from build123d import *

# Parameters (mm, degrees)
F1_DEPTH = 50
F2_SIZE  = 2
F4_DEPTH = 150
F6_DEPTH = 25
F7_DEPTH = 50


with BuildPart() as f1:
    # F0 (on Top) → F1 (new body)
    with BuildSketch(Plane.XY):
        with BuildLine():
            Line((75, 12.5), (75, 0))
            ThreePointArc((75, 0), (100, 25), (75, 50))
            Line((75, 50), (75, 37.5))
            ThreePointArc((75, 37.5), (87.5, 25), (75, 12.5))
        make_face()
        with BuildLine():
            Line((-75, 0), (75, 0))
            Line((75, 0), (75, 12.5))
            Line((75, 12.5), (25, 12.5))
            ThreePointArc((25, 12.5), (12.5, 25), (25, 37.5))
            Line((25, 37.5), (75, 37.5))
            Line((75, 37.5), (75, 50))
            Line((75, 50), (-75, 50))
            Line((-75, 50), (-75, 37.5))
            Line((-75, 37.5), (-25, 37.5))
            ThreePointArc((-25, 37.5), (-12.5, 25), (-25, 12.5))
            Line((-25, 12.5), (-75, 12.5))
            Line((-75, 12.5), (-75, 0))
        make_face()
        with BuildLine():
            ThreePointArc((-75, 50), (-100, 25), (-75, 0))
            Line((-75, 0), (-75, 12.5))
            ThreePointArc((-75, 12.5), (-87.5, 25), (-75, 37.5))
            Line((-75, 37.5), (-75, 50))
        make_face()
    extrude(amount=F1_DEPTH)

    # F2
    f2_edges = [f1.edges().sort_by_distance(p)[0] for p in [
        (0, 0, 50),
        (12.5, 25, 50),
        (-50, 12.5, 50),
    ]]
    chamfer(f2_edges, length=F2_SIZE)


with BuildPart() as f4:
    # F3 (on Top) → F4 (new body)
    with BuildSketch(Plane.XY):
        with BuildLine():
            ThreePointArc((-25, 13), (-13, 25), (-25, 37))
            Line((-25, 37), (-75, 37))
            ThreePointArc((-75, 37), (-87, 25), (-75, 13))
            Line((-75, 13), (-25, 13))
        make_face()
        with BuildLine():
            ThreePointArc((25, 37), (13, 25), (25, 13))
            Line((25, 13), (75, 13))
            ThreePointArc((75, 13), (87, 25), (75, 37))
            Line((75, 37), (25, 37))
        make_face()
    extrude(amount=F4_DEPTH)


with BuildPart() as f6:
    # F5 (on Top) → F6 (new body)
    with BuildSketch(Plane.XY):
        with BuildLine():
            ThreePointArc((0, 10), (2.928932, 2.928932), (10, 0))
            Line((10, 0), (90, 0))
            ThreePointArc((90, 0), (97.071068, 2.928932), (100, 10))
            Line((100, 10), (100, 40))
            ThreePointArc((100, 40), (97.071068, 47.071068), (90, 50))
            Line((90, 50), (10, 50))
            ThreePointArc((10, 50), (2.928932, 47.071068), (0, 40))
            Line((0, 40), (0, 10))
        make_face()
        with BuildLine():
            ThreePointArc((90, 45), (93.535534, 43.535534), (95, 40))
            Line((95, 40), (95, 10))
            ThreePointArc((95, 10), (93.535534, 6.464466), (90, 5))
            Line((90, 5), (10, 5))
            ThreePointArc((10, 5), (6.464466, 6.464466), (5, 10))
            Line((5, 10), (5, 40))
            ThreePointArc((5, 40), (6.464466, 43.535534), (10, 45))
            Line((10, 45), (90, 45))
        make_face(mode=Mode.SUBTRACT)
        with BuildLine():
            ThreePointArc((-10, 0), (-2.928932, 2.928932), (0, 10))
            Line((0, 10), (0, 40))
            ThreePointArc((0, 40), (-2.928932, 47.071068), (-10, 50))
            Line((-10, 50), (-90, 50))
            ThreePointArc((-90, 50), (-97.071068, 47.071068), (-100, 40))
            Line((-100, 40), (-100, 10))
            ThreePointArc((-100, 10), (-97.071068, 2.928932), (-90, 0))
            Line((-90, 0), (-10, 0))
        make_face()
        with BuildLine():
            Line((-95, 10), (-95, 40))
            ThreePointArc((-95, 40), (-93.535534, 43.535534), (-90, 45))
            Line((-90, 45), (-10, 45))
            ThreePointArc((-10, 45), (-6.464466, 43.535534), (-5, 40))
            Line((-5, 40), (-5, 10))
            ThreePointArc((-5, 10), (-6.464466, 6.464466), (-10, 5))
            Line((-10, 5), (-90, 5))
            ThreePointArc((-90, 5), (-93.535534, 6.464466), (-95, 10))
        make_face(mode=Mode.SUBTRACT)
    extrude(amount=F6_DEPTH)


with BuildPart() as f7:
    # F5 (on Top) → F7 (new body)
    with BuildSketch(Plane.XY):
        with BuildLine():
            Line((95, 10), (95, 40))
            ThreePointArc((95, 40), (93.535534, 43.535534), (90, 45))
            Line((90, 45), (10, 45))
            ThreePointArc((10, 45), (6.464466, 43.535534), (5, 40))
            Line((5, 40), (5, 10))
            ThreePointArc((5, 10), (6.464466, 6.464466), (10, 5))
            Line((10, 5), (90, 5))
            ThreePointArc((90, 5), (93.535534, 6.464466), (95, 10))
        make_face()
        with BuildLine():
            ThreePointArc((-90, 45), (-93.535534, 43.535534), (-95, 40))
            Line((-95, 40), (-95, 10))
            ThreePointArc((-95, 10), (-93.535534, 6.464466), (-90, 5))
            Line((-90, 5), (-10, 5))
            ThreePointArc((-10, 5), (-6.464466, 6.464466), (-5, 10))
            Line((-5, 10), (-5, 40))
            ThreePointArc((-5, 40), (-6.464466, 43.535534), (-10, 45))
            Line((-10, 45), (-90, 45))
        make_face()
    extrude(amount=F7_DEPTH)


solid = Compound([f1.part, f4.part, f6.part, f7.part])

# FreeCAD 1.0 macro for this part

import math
import FreeCAD as App
import Part
import Sketcher
from FreeCAD import Vector
Q = App.Units.Quantity


def edges_at(feature, points):
    """Names of the edges that pass closest to the given points."""
    edges = feature.Shape.Edges
    near = lambda p: min(range(len(edges)), key=lambda i: edges[i].distToShape(Part.Vertex(*p))[0])
    return sorted({f"Edge{near(p) + 1}" for p in points})

doc = App.newDocument("Part")
body = doc.addObject("PartDesign::Body", "Body")

# Sketch on XY plane
sketch1 = body.newObject("Sketcher::SketchObject", "Sketch")
sketch1.AttachmentSupport = (doc.getObject("XY_Plane"), [""])
sketch1.MapMode = "FlatFace"
sketch1.addGeometry([
    Part.ArcOfCircle(Part.Circle(Vector(75, 25, 0), Vector(0, 0, 1), 25), math.radians(-90), math.radians(90)),  # 0
    Part.LineSegment(Vector(75, 50, 0), Vector(-75, 50, 0)),  # 1
    Part.ArcOfCircle(Part.Circle(Vector(-75, 25, 0), Vector(0, 0, 1), 25), math.radians(90), math.radians(270)),  # 2
    Part.LineSegment(Vector(-75, 0, 0), Vector(75, 0, 0)),  # 3
    Part.LineSegment(Vector(-75, 38, 0), Vector(-25, 38, 0)),  # 4
    Part.ArcOfCircle(Part.Circle(Vector(-25, 25, 0), Vector(0, 0, 1), 12), math.radians(-90), math.radians(90)),  # 5
    Part.LineSegment(Vector(-25, 12, 0), Vector(-75, 12, 0)),  # 6
    Part.ArcOfCircle(Part.Circle(Vector(-75, 25, 0), Vector(0, 0, 1), 12), math.radians(90), math.radians(270)),  # 7
    Part.ArcOfCircle(Part.Circle(Vector(75, 25, 0), Vector(0, 0, 1), 12), math.radians(-90), math.radians(90)),  # 8
    Part.LineSegment(Vector(75, 12, 0), Vector(25, 12, 0)),  # 9
    Part.ArcOfCircle(Part.Circle(Vector(25, 25, 0), Vector(0, 0, 1), 12), math.radians(90), math.radians(270)),  # 10
    Part.LineSegment(Vector(25, 38, 0), Vector(75, 38, 0)),  # 11
], False)
sketch1.addConstraint([
    Sketcher.Constraint("Tangent", 0, 2, 1, 1),
    Sketcher.Constraint("Tangent", 1, 2, 2, 1),
    Sketcher.Constraint("Tangent", 2, 2, 3, 1),
    Sketcher.Constraint("Tangent", 3, 2, 0, 1),
    Sketcher.Constraint("Tangent", 4, 2, 5, 2),
    Sketcher.Constraint("Tangent", 5, 1, 6, 1),
    Sketcher.Constraint("Tangent", 6, 2, 7, 2),
    Sketcher.Constraint("Tangent", 7, 1, 4, 1),
    Sketcher.Constraint("Tangent", 8, 1, 9, 1),
    Sketcher.Constraint("Tangent", 9, 2, 10, 2),
    Sketcher.Constraint("Tangent", 10, 1, 11, 1),
    Sketcher.Constraint("Tangent", 11, 2, 8, 2),
    Sketcher.Constraint("Horizontal", 1),
    Sketcher.Constraint("Horizontal", 3),
    Sketcher.Constraint("Horizontal", 4),
    Sketcher.Constraint("Horizontal", 6),
    Sketcher.Constraint("Horizontal", 9),
    Sketcher.Constraint("Horizontal", 11),
    Sketcher.Constraint("Coincident", 7, 3, 2, 3),
    Sketcher.Constraint("Coincident", 8, 3, 0, 3),
    Sketcher.Constraint("Equal", 7, 8),
    Sketcher.Constraint("Symmetric", 2, 2, 3, 2, -1, 1),
    Sketcher.Constraint("Equal", 6, 9),
    Sketcher.Constraint("Radius", 0, Q("25 mm")),
    Sketcher.Constraint("Radius", 5, Q("12.5 mm")),
    Sketcher.Constraint("DistanceX", 1, 2, 1, 1, Q("150 mm")),
    Sketcher.Constraint("DistanceX", 4, 1, 4, 2, Q("50 mm")),
])
pad1 = body.newObject("PartDesign::Pad", "Pad")
pad1.Profile = sketch1
pad1.Length = 50
doc.recompute()

chamfer = body.newObject("PartDesign::Chamfer", "Chamfer")
chamfer.Base = (pad1, edges_at(pad1, [(0, 0, 50), (12.5, 25, 50), (-50, 12.5, 50)]))
chamfer.Size = 2
body2 = doc.addObject("PartDesign::Body", "Body001")
body2.AllowCompound = True

# Sketch on XY plane
sketch2 = body2.newObject("Sketcher::SketchObject", "Sketch001")
sketch2.AttachmentSupport = (doc.getObject("XY_Plane001"), [""])
sketch2.MapMode = "FlatFace"
sketch2.addGeometry([
    Part.ArcOfCircle(Part.Circle(Vector(-25, 25, 0), Vector(0, 0, 1), 12), math.radians(-90), math.radians(90)),  # 0
    Part.LineSegment(Vector(-25, 37, 0), Vector(-75, 37, 0)),  # 1
    Part.ArcOfCircle(Part.Circle(Vector(-75, 25, 0), Vector(0, 0, 1), 12), math.radians(90), math.radians(270)),  # 2
    Part.LineSegment(Vector(-75, 13, 0), Vector(-25, 13, 0)),  # 3
    Part.ArcOfCircle(Part.Circle(Vector(25, 25, 0), Vector(0, 0, 1), 12), math.radians(90), math.radians(270)),  # 4
    Part.LineSegment(Vector(25, 13, 0), Vector(75, 13, 0)),  # 5
    Part.ArcOfCircle(Part.Circle(Vector(75, 25, 0), Vector(0, 0, 1), 12), math.radians(-90), math.radians(90)),  # 6
    Part.LineSegment(Vector(75, 37, 0), Vector(25, 37, 0)),  # 7
], False)
sketch2.addConstraint([
    Sketcher.Constraint("Tangent", 0, 2, 1, 1),
    Sketcher.Constraint("Tangent", 1, 2, 2, 1),
    Sketcher.Constraint("Tangent", 2, 2, 3, 1),
    Sketcher.Constraint("Tangent", 3, 2, 0, 1),
    Sketcher.Constraint("Tangent", 4, 2, 5, 1),
    Sketcher.Constraint("Tangent", 5, 2, 6, 1),
    Sketcher.Constraint("Tangent", 6, 2, 7, 1),
    Sketcher.Constraint("Tangent", 7, 2, 4, 1),
    Sketcher.Constraint("Horizontal", 1),
    Sketcher.Constraint("Horizontal", 3),
    Sketcher.Constraint("Horizontal", 5),
    Sketcher.Constraint("Horizontal", 7),
    Sketcher.Constraint("Equal", 2, 4),
    Sketcher.Constraint("Symmetric", 0, 3, 4, 3, -2),
    Sketcher.Constraint("Equal", 3, 5),
    Sketcher.Constraint("Radius", 0, Q("12 mm")),
    Sketcher.Constraint("DistanceX", 1, 2, 1, 1, Q("50 mm")),
    Sketcher.Constraint("DistanceX", 0, 3, -1, 1, Q("25 mm")),
    Sketcher.Constraint("DistanceY", -1, 1, 0, 3, Q("25 mm")),
])
pad2 = body2.newObject("PartDesign::Pad", "Pad001")
pad2.Profile = sketch2
pad2.Length = 150
body3 = doc.addObject("PartDesign::Body", "Body002")

# Sketch on XY plane
sketch3 = body3.newObject("Sketcher::SketchObject", "Sketch002")
sketch3.AttachmentSupport = (doc.getObject("XY_Plane002"), [""])
sketch3.MapMode = "FlatFace"
sketch3.addGeometry([
    Part.ArcOfCircle(Part.Circle(Vector(10, 10, 0), Vector(0, 0, 1), 10), math.radians(180), math.radians(270)),  # 0
    Part.LineSegment(Vector(10, 0, 0), Vector(90, 0, 0)),  # 1
    Part.ArcOfCircle(Part.Circle(Vector(90, 10, 0), Vector(0, 0, 1), 10), math.radians(-90), math.radians(0)),  # 2
    Part.LineSegment(Vector(100, 10, 0), Vector(100, 40, 0)),  # 3
    Part.ArcOfCircle(Part.Circle(Vector(90, 40, 0), Vector(0, 0, 1), 10), math.radians(0), math.radians(90)),  # 4
    Part.LineSegment(Vector(90, 50, 0), Vector(10, 50, 0)),  # 5
    Part.ArcOfCircle(Part.Circle(Vector(10, 40, 0), Vector(0, 0, 1), 10), math.radians(90), math.radians(180)),  # 6
    Part.ArcOfCircle(Part.Circle(Vector(-10, 40, 0), Vector(0, 0, 1), 10), math.radians(0), math.radians(90)),  # 7
    Part.LineSegment(Vector(-10, 50, 0), Vector(-90, 50, 0)),  # 8
    Part.ArcOfCircle(Part.Circle(Vector(-90, 40, 0), Vector(0, 0, 1), 10), math.radians(90), math.radians(180)),  # 9
    Part.LineSegment(Vector(-100, 40, 0), Vector(-100, 10, 0)),  # 10
    Part.ArcOfCircle(Part.Circle(Vector(-90, 10, 0), Vector(0, 0, 1), 10), math.radians(180), math.radians(270)),  # 11
    Part.LineSegment(Vector(-90, 0, 0), Vector(-10, 0, 0)),  # 12
    Part.ArcOfCircle(Part.Circle(Vector(-10, 10, 0), Vector(0, 0, 1), 10), math.radians(-90), math.radians(0)),  # 13
    Part.ArcOfCircle(Part.Circle(Vector(-90, 10, 0), Vector(0, 0, 1), 5), math.radians(180), math.radians(270)),  # 14
    Part.LineSegment(Vector(-95, 10, 0), Vector(-95, 40, 0)),  # 15
    Part.ArcOfCircle(Part.Circle(Vector(-90, 40, 0), Vector(0, 0, 1), 5), math.radians(90), math.radians(180)),  # 16
    Part.LineSegment(Vector(-90, 45, 0), Vector(-10, 45, 0)),  # 17
    Part.ArcOfCircle(Part.Circle(Vector(-10, 40, 0), Vector(0, 0, 1), 5), math.radians(0), math.radians(90)),  # 18
    Part.LineSegment(Vector(-5, 40, 0), Vector(-5, 10, 0)),  # 19
    Part.ArcOfCircle(Part.Circle(Vector(-10, 10, 0), Vector(0, 0, 1), 5), math.radians(-90), math.radians(0)),  # 20
    Part.LineSegment(Vector(-10, 5, 0), Vector(-90, 5, 0)),  # 21
    Part.LineSegment(Vector(10, 45, 0), Vector(90, 45, 0)),  # 22
    Part.ArcOfCircle(Part.Circle(Vector(90, 40, 0), Vector(0, 0, 1), 5), math.radians(0), math.radians(90)),  # 23
    Part.LineSegment(Vector(95, 40, 0), Vector(95, 10, 0)),  # 24
    Part.ArcOfCircle(Part.Circle(Vector(90, 10, 0), Vector(0, 0, 1), 5), math.radians(-90), math.radians(0)),  # 25
    Part.LineSegment(Vector(90, 5, 0), Vector(10, 5, 0)),  # 26
    Part.ArcOfCircle(Part.Circle(Vector(10, 10, 0), Vector(0, 0, 1), 5), math.radians(180), math.radians(270)),  # 27
    Part.LineSegment(Vector(5, 10, 0), Vector(5, 40, 0)),  # 28
    Part.ArcOfCircle(Part.Circle(Vector(10, 40, 0), Vector(0, 0, 1), 5), math.radians(90), math.radians(180)),  # 29
], False)
sketch3.addConstraint([
    Sketcher.Constraint("Tangent", 0, 2, 1, 1),
    Sketcher.Constraint("Tangent", 1, 2, 2, 1),
    Sketcher.Constraint("Tangent", 2, 2, 3, 1),
    Sketcher.Constraint("Tangent", 3, 2, 4, 1),
    Sketcher.Constraint("Tangent", 4, 2, 5, 1),
    Sketcher.Constraint("Tangent", 5, 2, 6, 1),
    Sketcher.Constraint("Tangent", 6, 2, 7, 1),
    Sketcher.Constraint("Tangent", 7, 2, 8, 1),
    Sketcher.Constraint("Tangent", 8, 2, 9, 1),
    Sketcher.Constraint("Tangent", 9, 2, 10, 1),
    Sketcher.Constraint("Tangent", 10, 2, 11, 1),
    Sketcher.Constraint("Tangent", 11, 2, 12, 1),
    Sketcher.Constraint("Tangent", 12, 2, 13, 1),
    Sketcher.Constraint("Tangent", 13, 2, 0, 1),
    Sketcher.Constraint("Tangent", 14, 1, 15, 1),
    Sketcher.Constraint("Tangent", 15, 2, 16, 2),
    Sketcher.Constraint("Tangent", 16, 1, 17, 1),
    Sketcher.Constraint("Tangent", 17, 2, 18, 2),
    Sketcher.Constraint("Tangent", 18, 1, 19, 1),
    Sketcher.Constraint("Tangent", 19, 2, 20, 2),
    Sketcher.Constraint("Tangent", 20, 1, 21, 1),
    Sketcher.Constraint("Tangent", 21, 2, 14, 2),
    Sketcher.Constraint("Tangent", 22, 2, 23, 2),
    Sketcher.Constraint("Tangent", 23, 1, 24, 1),
    Sketcher.Constraint("Tangent", 24, 2, 25, 2),
    Sketcher.Constraint("Tangent", 25, 1, 26, 1),
    Sketcher.Constraint("Tangent", 26, 2, 27, 2),
    Sketcher.Constraint("Tangent", 27, 1, 28, 1),
    Sketcher.Constraint("Tangent", 28, 2, 29, 2),
    Sketcher.Constraint("Tangent", 29, 1, 22, 1),
    Sketcher.Constraint("Horizontal", 1),
    Sketcher.Constraint("Vertical", 3),
    Sketcher.Constraint("Horizontal", 5),
    Sketcher.Constraint("Horizontal", 8),
    Sketcher.Constraint("Vertical", 10),
    Sketcher.Constraint("Horizontal", 12),
    Sketcher.Constraint("Vertical", 15),
    Sketcher.Constraint("Horizontal", 17),
    Sketcher.Constraint("Vertical", 19),
    Sketcher.Constraint("Horizontal", 21),
    Sketcher.Constraint("Horizontal", 22),
    Sketcher.Constraint("Vertical", 24),
    Sketcher.Constraint("Horizontal", 26),
    Sketcher.Constraint("Vertical", 28),
    Sketcher.Constraint("Coincident", 14, 3, 11, 3),
    Sketcher.Constraint("Coincident", 16, 3, 9, 3),
    Sketcher.Constraint("Coincident", 18, 3, 7, 3),
    Sketcher.Constraint("Coincident", 20, 3, 13, 3),
    Sketcher.Constraint("Coincident", 23, 3, 4, 3),
    Sketcher.Constraint("Coincident", 25, 3, 2, 3),
    Sketcher.Constraint("Coincident", 27, 3, 0, 3),
    Sketcher.Constraint("Equal", 0, 2),
    Sketcher.Constraint("Equal", 2, 4),
    Sketcher.Constraint("Equal", 4, 6),
    Sketcher.Constraint("Equal", 6, 7),
    Sketcher.Constraint("Equal", 7, 9),
    Sketcher.Constraint("Equal", 9, 11),
    Sketcher.Constraint("Equal", 11, 13),
    Sketcher.Constraint("Equal", 20, 23),
    Sketcher.Constraint("Equal", 27, 29),
    Sketcher.Constraint("Symmetric", 1, 2, 11, 2, -1, 1),
    Sketcher.Constraint("Symmetric", 6, 3, 7, 3, -2),
    Sketcher.Constraint("PointOnObject", 0, 2, -1),
    Sketcher.Constraint("Radius", 0, Q("9.999999 mm")),
    Sketcher.Constraint("Radius", 14, Q("5 mm")),
    Sketcher.Constraint("DistanceX", 1, 1, 1, 2, Q("80 mm")),
    Sketcher.Constraint("DistanceY", 3, 1, 3, 2, Q("30 mm")),
])
pad3 = body3.newObject("PartDesign::Pad", "Pad002")
pad3.Profile = sketch3
pad3.Length = 25
body4 = doc.addObject("PartDesign::Body", "Body003")
body4.AllowCompound = True

# Sketch on XY plane
sketch4 = body4.newObject("Sketcher::SketchObject", "Sketch003")
sketch4.AttachmentSupport = (doc.getObject("XY_Plane003"), [""])
sketch4.MapMode = "FlatFace"
sketch4.addGeometry([
    Part.LineSegment(Vector(95, 10, 0), Vector(95, 40, 0)),  # 0
    Part.ArcOfCircle(Part.Circle(Vector(90, 40, 0), Vector(0, 0, 1), 5), math.radians(0), math.radians(90)),  # 1
    Part.LineSegment(Vector(90, 45, 0), Vector(10, 45, 0)),  # 2
    Part.ArcOfCircle(Part.Circle(Vector(10, 40, 0), Vector(0, 0, 1), 5), math.radians(90), math.radians(180)),  # 3
    Part.LineSegment(Vector(5, 40, 0), Vector(5, 10, 0)),  # 4
    Part.ArcOfCircle(Part.Circle(Vector(10, 10, 0), Vector(0, 0, 1), 5), math.radians(180), math.radians(270)),  # 5
    Part.LineSegment(Vector(10, 5, 0), Vector(90, 5, 0)),  # 6
    Part.ArcOfCircle(Part.Circle(Vector(90, 10, 0), Vector(0, 0, 1), 5), math.radians(-90), math.radians(0)),  # 7
    Part.ArcOfCircle(Part.Circle(Vector(-90, 40, 0), Vector(0, 0, 1), 5), math.radians(90), math.radians(180)),  # 8
    Part.LineSegment(Vector(-95, 40, 0), Vector(-95, 10, 0)),  # 9
    Part.ArcOfCircle(Part.Circle(Vector(-90, 10, 0), Vector(0, 0, 1), 5), math.radians(180), math.radians(270)),  # 10
    Part.LineSegment(Vector(-90, 5, 0), Vector(-10, 5, 0)),  # 11
    Part.ArcOfCircle(Part.Circle(Vector(-10, 10, 0), Vector(0, 0, 1), 5), math.radians(-90), math.radians(0)),  # 12
    Part.LineSegment(Vector(-5, 10, 0), Vector(-5, 40, 0)),  # 13
    Part.ArcOfCircle(Part.Circle(Vector(-10, 40, 0), Vector(0, 0, 1), 5), math.radians(0), math.radians(90)),  # 14
    Part.LineSegment(Vector(-10, 45, 0), Vector(-90, 45, 0)),  # 15
], False)
sketch4.addConstraint([
    Sketcher.Constraint("Tangent", 0, 2, 1, 1),
    Sketcher.Constraint("Tangent", 1, 2, 2, 1),
    Sketcher.Constraint("Tangent", 2, 2, 3, 1),
    Sketcher.Constraint("Tangent", 3, 2, 4, 1),
    Sketcher.Constraint("Tangent", 4, 2, 5, 1),
    Sketcher.Constraint("Tangent", 5, 2, 6, 1),
    Sketcher.Constraint("Tangent", 6, 2, 7, 1),
    Sketcher.Constraint("Tangent", 7, 2, 0, 1),
    Sketcher.Constraint("Tangent", 8, 2, 9, 1),
    Sketcher.Constraint("Tangent", 9, 2, 10, 1),
    Sketcher.Constraint("Tangent", 10, 2, 11, 1),
    Sketcher.Constraint("Tangent", 11, 2, 12, 1),
    Sketcher.Constraint("Tangent", 12, 2, 13, 1),
    Sketcher.Constraint("Tangent", 13, 2, 14, 1),
    Sketcher.Constraint("Tangent", 14, 2, 15, 1),
    Sketcher.Constraint("Tangent", 15, 2, 8, 1),
    Sketcher.Constraint("Vertical", 0),
    Sketcher.Constraint("Horizontal", 2),
    Sketcher.Constraint("Vertical", 4),
    Sketcher.Constraint("Horizontal", 6),
    Sketcher.Constraint("Vertical", 9),
    Sketcher.Constraint("Horizontal", 11),
    Sketcher.Constraint("Vertical", 13),
    Sketcher.Constraint("Horizontal", 15),
    Sketcher.Constraint("Equal", 1, 3),
    Sketcher.Constraint("Equal", 3, 5),
    Sketcher.Constraint("Equal", 5, 7),
    Sketcher.Constraint("Equal", 7, 8),
    Sketcher.Constraint("Equal", 8, 10),
    Sketcher.Constraint("Equal", 10, 12),
    Sketcher.Constraint("Equal", 12, 14),
    Sketcher.Constraint("Symmetric", 1, 3, 8, 3, -2),
    Sketcher.Constraint("Symmetric", 5, 3, 12, 3, -2),
    Sketcher.Constraint("Radius", 1, Q("5 mm")),
    Sketcher.Constraint("DistanceX", 2, 2, 2, 1, Q("80 mm")),
    Sketcher.Constraint("DistanceY", 0, 1, 0, 2, Q("30 mm")),
    Sketcher.Constraint("DistanceX", -1, 1, 1, 3, Q("90 mm")),
    Sketcher.Constraint("DistanceY", -1, 1, 1, 3, Q("40 mm")),
])
pad4 = body4.newObject("PartDesign::Pad", "Pad003")
pad4.Profile = sketch4
pad4.Length = 50

doc.recompute()
